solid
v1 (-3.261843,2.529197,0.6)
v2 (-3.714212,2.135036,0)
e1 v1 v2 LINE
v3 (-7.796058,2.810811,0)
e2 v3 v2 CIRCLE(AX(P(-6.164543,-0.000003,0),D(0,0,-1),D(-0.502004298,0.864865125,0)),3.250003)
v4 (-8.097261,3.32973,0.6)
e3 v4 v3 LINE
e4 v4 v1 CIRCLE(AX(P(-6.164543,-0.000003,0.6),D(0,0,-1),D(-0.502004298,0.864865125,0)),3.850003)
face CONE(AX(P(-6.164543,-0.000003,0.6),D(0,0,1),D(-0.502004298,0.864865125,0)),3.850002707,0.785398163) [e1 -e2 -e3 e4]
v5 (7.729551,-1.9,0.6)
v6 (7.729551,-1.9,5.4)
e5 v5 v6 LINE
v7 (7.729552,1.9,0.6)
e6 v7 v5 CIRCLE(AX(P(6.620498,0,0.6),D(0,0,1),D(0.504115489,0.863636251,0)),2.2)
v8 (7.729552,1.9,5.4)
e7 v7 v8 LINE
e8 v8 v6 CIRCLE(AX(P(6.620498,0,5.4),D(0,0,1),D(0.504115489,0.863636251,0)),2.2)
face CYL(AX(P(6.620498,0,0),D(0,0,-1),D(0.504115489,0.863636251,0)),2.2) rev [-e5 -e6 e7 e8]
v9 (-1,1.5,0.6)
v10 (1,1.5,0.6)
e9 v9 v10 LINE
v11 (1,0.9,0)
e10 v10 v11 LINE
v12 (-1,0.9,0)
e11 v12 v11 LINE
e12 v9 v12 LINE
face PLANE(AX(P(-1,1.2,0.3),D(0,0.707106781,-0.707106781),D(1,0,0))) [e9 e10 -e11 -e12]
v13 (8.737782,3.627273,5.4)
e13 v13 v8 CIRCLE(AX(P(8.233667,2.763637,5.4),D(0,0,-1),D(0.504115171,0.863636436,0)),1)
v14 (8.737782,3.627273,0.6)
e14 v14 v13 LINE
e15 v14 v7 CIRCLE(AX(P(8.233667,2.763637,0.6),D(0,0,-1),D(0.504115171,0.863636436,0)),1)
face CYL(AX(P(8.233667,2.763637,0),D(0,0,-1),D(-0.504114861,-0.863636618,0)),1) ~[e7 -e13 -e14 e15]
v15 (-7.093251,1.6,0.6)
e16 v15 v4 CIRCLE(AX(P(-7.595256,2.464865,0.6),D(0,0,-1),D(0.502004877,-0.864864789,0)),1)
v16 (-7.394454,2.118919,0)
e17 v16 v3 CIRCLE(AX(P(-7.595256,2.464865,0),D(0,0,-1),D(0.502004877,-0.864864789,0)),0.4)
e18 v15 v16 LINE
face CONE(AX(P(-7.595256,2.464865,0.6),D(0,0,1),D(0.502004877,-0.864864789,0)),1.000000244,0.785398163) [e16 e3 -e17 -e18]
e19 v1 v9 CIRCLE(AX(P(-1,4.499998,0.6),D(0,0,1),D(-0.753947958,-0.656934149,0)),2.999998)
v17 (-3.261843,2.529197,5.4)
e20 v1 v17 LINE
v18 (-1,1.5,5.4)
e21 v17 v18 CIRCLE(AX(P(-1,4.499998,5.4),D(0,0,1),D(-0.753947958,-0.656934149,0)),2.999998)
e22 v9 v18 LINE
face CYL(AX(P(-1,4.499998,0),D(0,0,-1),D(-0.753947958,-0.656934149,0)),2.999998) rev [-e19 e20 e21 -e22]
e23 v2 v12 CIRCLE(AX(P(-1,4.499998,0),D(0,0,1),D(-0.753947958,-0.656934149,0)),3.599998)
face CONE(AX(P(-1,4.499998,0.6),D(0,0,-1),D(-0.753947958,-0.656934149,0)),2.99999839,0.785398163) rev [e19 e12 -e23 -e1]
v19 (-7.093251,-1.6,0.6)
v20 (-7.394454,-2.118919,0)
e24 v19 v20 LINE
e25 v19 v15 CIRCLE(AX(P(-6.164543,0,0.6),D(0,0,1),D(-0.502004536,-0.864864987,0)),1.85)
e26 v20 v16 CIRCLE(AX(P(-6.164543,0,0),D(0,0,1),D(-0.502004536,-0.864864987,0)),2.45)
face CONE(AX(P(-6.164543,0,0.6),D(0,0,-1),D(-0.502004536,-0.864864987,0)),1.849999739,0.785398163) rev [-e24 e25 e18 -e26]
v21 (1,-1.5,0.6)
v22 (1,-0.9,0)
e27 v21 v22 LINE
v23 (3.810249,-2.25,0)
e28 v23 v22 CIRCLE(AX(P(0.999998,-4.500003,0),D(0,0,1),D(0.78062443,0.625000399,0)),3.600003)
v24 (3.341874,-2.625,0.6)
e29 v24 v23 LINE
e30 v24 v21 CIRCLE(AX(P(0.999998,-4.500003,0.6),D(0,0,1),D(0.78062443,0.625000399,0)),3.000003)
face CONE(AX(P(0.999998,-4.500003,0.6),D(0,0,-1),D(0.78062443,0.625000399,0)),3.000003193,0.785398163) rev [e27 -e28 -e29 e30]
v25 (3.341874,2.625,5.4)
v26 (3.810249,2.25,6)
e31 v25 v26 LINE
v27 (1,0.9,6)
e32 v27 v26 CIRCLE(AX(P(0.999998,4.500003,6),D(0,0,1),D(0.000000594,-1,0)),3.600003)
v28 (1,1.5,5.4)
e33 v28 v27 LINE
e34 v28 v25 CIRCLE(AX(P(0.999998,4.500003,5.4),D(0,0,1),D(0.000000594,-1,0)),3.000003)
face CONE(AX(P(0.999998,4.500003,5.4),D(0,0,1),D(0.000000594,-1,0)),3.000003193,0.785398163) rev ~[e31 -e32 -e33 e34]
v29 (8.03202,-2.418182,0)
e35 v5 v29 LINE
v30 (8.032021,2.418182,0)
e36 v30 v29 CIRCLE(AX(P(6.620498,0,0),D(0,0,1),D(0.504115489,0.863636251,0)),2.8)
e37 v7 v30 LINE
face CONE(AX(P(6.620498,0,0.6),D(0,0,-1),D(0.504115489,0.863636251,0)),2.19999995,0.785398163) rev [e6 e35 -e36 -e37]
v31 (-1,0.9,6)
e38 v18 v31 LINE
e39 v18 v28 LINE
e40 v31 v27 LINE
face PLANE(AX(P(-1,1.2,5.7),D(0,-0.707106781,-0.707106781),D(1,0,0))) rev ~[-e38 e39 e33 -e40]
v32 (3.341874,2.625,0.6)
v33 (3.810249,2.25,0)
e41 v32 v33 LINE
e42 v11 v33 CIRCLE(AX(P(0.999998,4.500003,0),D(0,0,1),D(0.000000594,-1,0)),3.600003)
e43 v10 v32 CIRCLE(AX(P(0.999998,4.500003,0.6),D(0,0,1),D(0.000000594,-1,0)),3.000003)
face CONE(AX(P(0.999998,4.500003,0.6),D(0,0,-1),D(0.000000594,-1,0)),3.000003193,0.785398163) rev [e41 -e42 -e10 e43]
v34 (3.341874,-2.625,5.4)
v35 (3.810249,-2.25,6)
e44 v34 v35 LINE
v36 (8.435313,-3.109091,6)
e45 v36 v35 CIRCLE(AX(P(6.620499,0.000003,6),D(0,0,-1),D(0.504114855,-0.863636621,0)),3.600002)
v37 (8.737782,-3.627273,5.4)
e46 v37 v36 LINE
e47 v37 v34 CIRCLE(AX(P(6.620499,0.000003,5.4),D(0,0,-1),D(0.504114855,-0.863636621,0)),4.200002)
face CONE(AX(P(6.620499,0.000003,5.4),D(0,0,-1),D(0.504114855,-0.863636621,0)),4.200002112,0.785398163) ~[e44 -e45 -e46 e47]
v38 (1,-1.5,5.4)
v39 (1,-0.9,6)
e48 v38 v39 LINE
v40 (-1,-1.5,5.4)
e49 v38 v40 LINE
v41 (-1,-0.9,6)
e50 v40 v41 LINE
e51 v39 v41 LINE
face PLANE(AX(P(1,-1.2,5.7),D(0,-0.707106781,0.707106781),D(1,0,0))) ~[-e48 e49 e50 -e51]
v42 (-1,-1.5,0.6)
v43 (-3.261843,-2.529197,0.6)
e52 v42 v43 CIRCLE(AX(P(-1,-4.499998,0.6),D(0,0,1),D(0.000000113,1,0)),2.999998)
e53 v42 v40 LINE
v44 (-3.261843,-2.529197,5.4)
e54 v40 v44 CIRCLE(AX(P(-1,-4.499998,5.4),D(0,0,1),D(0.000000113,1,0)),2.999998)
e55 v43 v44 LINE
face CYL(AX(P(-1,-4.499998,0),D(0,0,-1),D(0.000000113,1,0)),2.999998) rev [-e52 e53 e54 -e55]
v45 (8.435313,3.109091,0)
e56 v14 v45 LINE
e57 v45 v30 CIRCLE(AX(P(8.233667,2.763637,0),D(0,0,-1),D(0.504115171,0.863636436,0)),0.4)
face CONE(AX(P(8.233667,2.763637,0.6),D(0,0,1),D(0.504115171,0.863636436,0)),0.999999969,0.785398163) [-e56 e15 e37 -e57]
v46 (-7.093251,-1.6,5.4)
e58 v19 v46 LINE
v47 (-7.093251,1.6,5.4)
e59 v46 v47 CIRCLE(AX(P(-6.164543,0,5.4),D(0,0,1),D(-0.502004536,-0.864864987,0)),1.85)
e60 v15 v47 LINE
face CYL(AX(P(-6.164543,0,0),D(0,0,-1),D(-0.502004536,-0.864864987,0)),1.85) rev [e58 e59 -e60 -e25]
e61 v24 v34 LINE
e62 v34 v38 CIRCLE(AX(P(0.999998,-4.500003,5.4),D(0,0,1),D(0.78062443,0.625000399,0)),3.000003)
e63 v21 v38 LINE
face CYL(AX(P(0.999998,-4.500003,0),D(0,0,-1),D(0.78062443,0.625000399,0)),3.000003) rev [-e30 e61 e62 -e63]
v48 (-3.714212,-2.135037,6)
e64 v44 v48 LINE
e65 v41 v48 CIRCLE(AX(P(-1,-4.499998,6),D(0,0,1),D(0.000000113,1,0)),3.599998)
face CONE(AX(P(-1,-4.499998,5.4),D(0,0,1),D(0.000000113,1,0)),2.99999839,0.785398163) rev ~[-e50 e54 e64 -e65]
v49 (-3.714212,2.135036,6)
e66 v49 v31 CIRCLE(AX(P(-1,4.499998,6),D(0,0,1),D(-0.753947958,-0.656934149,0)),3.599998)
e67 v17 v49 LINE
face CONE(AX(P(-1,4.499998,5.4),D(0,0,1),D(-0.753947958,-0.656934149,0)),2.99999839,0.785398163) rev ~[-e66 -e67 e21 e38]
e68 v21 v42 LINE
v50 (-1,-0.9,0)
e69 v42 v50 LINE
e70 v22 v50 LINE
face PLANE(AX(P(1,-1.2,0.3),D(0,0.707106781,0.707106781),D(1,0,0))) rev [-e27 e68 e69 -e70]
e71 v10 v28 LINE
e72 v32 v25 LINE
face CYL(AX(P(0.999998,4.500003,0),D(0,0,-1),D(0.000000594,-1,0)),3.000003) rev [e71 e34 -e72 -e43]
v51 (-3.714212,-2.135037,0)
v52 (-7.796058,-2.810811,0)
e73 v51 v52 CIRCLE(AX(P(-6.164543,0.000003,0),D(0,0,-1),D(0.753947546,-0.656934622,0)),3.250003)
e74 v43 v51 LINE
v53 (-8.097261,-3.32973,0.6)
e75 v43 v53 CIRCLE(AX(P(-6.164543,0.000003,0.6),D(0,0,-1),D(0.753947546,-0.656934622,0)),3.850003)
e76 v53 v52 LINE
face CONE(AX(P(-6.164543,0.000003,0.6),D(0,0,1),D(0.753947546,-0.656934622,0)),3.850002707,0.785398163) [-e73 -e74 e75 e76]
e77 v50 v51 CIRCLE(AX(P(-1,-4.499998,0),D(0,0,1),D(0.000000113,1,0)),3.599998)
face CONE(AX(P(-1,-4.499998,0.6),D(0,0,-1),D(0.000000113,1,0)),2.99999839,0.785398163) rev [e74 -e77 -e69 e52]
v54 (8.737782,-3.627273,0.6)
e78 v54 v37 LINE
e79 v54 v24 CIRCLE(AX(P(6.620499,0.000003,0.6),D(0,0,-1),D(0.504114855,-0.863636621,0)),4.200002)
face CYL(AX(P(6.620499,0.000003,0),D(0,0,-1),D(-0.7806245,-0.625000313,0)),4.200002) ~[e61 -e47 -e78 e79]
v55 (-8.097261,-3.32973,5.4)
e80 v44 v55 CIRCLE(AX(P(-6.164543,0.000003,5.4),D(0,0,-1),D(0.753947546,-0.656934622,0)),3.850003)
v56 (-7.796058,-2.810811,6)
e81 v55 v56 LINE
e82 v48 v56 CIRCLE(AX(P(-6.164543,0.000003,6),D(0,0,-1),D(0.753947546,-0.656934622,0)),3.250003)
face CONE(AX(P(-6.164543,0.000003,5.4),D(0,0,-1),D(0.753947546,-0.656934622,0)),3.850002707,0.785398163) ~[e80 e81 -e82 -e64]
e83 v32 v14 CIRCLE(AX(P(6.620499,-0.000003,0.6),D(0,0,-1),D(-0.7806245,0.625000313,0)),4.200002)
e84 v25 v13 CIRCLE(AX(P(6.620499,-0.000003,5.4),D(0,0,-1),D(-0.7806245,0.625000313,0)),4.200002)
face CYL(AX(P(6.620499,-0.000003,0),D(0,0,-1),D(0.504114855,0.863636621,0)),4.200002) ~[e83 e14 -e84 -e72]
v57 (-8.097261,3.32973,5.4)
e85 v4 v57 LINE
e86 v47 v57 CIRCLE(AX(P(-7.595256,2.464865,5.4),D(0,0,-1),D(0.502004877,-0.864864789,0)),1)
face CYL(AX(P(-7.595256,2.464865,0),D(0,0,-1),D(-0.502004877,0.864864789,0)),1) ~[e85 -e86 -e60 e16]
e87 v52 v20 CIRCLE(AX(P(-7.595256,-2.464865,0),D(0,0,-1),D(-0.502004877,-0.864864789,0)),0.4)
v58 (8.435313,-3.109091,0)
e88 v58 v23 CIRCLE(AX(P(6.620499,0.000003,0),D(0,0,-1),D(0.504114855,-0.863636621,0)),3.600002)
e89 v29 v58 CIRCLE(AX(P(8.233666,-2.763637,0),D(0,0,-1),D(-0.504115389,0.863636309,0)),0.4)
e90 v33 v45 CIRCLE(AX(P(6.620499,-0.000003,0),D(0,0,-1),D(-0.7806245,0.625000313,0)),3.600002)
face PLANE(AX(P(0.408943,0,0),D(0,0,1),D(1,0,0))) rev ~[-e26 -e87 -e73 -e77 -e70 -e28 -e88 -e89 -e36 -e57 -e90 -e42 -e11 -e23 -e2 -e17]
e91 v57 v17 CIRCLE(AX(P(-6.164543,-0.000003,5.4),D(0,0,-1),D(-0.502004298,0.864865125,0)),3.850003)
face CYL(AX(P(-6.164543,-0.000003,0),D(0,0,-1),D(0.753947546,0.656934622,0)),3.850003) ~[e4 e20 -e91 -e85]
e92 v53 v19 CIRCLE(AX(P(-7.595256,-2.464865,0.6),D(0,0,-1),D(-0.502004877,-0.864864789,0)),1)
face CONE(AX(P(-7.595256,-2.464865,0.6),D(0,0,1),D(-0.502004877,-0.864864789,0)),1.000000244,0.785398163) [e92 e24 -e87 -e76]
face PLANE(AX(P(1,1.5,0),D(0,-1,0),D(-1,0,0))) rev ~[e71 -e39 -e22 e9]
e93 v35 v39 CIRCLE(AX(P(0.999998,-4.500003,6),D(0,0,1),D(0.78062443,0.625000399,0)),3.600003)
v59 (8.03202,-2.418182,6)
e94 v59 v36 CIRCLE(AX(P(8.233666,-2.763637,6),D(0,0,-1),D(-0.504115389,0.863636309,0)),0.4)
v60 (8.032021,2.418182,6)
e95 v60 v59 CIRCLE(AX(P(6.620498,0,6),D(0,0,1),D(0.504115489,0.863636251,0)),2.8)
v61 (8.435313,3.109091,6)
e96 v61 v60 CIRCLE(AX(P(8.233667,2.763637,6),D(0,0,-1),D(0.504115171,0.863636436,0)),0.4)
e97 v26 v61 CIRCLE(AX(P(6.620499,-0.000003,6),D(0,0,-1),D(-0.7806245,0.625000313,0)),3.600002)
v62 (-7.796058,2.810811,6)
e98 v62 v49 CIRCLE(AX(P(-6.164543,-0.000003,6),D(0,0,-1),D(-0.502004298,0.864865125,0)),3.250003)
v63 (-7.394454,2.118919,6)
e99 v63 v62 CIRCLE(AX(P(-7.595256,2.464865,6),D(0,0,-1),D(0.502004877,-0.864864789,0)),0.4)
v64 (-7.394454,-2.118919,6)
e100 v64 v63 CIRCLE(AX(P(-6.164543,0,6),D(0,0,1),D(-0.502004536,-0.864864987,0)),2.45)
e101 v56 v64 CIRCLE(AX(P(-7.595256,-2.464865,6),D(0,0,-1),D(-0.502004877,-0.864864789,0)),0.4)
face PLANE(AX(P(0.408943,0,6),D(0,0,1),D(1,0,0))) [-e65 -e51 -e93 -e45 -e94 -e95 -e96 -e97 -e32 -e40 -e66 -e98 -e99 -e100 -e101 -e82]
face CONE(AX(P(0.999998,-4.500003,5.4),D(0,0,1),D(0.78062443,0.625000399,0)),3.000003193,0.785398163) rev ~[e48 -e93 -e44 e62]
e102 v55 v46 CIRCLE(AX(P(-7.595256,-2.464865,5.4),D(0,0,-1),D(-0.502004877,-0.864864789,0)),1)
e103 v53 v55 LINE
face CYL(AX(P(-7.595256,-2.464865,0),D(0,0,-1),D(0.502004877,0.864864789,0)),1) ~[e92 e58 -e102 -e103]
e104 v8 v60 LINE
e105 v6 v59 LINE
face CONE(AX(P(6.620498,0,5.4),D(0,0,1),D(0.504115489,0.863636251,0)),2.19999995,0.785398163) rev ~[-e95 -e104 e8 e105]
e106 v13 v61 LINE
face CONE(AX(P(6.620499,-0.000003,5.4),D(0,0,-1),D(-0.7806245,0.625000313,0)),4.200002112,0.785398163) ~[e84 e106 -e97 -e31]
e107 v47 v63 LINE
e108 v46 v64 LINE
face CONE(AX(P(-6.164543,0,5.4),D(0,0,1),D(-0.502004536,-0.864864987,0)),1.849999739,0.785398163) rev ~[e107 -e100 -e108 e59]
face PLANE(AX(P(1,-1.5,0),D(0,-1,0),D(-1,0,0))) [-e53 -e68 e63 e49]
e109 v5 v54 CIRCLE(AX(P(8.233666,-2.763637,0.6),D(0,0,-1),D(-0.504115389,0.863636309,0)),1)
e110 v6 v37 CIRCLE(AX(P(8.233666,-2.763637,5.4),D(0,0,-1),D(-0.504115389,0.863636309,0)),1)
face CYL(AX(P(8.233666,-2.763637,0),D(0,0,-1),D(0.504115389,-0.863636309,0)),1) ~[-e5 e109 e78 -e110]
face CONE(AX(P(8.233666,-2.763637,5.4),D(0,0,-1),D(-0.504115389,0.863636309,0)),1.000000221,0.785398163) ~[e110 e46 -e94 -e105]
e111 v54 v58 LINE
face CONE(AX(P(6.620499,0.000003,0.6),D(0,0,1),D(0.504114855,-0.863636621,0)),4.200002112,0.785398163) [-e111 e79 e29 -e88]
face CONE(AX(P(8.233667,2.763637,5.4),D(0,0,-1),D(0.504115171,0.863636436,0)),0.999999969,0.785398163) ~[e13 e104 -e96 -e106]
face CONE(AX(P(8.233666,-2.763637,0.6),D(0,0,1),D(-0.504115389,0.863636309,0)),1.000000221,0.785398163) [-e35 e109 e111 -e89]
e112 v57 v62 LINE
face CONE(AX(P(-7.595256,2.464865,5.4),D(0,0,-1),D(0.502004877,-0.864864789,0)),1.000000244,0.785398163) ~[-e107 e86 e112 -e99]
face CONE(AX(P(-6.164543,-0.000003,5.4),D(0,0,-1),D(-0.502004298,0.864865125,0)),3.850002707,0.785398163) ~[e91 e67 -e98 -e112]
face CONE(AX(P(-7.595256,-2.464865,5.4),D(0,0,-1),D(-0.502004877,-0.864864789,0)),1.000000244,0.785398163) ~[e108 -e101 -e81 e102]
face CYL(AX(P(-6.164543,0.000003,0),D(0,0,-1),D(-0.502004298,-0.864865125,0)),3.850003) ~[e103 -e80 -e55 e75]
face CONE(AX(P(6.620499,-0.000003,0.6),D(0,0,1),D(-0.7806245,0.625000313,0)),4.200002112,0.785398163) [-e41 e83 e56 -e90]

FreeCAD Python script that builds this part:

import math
import FreeCAD as App
import Part
import Sketcher
from FreeCAD import Vector


def edges_at(feature, points):
    """Names of the edges that pass closest to the given points."""
    edges = feature.Shape.Edges
    near = lambda p: min(range(len(edges)), key=lambda i: edges[i].distToShape(Part.Vertex(*p))[0])
    return sorted({f"Edge{near(p) + 1}" for p in points})

doc = App.newDocument("Part")
body = doc.addObject("PartDesign::Body", "Body")

# Sketch on XY plane
sketch1 = doc.addObject("Sketcher::SketchObject", "Sketch")
body.addObject(sketch1)
sketch1.AttachmentSupport = (doc.XY_Plane, [""])
sketch1.MapMode = "FlatFace"
sketch1.addGeometry([
    Part.ArcOfCircle(Part.Circle(Vector(8.2, 2.8, 0), Vector(0, 0, 1), 1), math.radians(-120), math.radians(60)),  # 0
    Part.ArcOfCircle(Part.Circle(Vector(6.6, 0, 0), Vector(0, 0, 1), 4.2), math.radians(60), math.radians(141)),  # 1
    Part.ArcOfCircle(Part.Circle(Vector(1, 4.5, 0), Vector(0, 0, 1), 3), math.radians(-90), math.radians(-39)),  # 2
    Part.LineSegment(Vector(1, 1.5, 0), Vector(-1, 1.5, 0)),  # 3
    Part.ArcOfCircle(Part.Circle(Vector(-1, 4.5, 0), Vector(0, 0, 1), 3), math.radians(-139), math.radians(-90)),  # 4
    Part.ArcOfCircle(Part.Circle(Vector(-6.2, 0, 0), Vector(0, 0, 1), 3.9), math.radians(41), math.radians(120)),  # 5
    Part.ArcOfCircle(Part.Circle(Vector(-7.6, 2.5, 0), Vector(0, 0, 1), 1), math.radians(120), math.radians(300)),  # 6
    Part.ArcOfCircle(Part.Circle(Vector(-6.2, 0, 0), Vector(0, 0, 1), 1.8), math.radians(-120), math.radians(120)),  # 7
    Part.ArcOfCircle(Part.Circle(Vector(-7.6, -2.5, 0), Vector(0, 0, 1), 1), math.radians(60), math.radians(240)),  # 8
    Part.ArcOfCircle(Part.Circle(Vector(-6.2, 0, 0), Vector(0, 0, 1), 3.9), math.radians(-120), math.radians(-41)),  # 9
    Part.ArcOfCircle(Part.Circle(Vector(-1, -4.5, 0), Vector(0, 0, 1), 3), math.radians(90), math.radians(139)),  # 10
    Part.LineSegment(Vector(-1, -1.5, 0), Vector(1, -1.5, 0)),  # 11
    Part.ArcOfCircle(Part.Circle(Vector(1, -4.5, 0), Vector(0, 0, 1), 3), math.radians(39), math.radians(90)),  # 12
    Part.ArcOfCircle(Part.Circle(Vector(6.6, 0, 0), Vector(0, 0, 1), 4.2), math.radians(-141), math.radians(-60)),  # 13
    Part.ArcOfCircle(Part.Circle(Vector(8.2, -2.8, 0), Vector(0, 0, 1), 1), math.radians(-60), math.radians(120)),  # 14
    Part.ArcOfCircle(Part.Circle(Vector(6.6, 0, 0), Vector(0, 0, 1), 2.2), math.radians(60), math.radians(300)),  # 15
], False)
sketch1.addConstraint([
    Sketcher.Constraint("Tangent", 0, 2, 1, 1),
    Sketcher.Constraint("Tangent", 1, 2, 2, 2),
    Sketcher.Constraint("Tangent", 2, 1, 3, 1),
    Sketcher.Constraint("Tangent", 3, 2, 4, 2),
    Sketcher.Constraint("Tangent", 4, 1, 5, 1),
    Sketcher.Constraint("Tangent", 5, 2, 6, 1),
    Sketcher.Constraint("Tangent", 6, 2, 7, 2),
    Sketcher.Constraint("Tangent", 7, 1, 8, 1),
    Sketcher.Constraint("Tangent", 8, 2, 9, 1),
    Sketcher.Constraint("Tangent", 9, 2, 10, 2),
    Sketcher.Constraint("Tangent", 10, 1, 11, 1),
    Sketcher.Constraint("Tangent", 11, 2, 12, 2),
    Sketcher.Constraint("Tangent", 12, 1, 13, 1),
    Sketcher.Constraint("Tangent", 13, 2, 14, 1),
    Sketcher.Constraint("Tangent", 14, 2, 15, 2),
    Sketcher.Constraint("Tangent", 15, 1, 0, 1),
    Sketcher.Constraint("Horizontal", 3),
    Sketcher.Constraint("Horizontal", 11),
    Sketcher.Constraint("Coincident", 7, 3, 5, 3),
    Sketcher.Constraint("Coincident", 9, 3, 5, 3),
    Sketcher.Constraint("Coincident", 13, 3, 1, 3),
    Sketcher.Constraint("Coincident", 15, 3, 1, 3),
    Sketcher.Constraint("Equal", 0, 6),
    Sketcher.Constraint("Equal", 6, 8),
    Sketcher.Constraint("Equal", 4, 10),
    Sketcher.Constraint("Equal", 2, 12),
    Sketcher.Constraint("Equal", 1, 13),
    Sketcher.Constraint("Symmetric", 2, 3, 10, 3, -1, 1),
    Sketcher.Constraint("Symmetric", 4, 3, 12, 3, -1, 1),
    Sketcher.Constraint("Symmetric", 6, 3, 8, 3, -1),
    Sketcher.Constraint("Vertical", 0, 3, 14, 3),
    Sketcher.Constraint("Radius", 0, 1.0),
    Sketcher.Constraint("Radius", 4, 2.999998),
    Sketcher.Constraint("Radius", 15, 2.2),
    Sketcher.Constraint("DistanceX", 3, 2, 3, 1, 2.0),
    Sketcher.Constraint("Radius", 7, 1.85),
    Sketcher.Constraint("DistanceY", 10, 1, 3, 2, 3.0),
    Sketcher.Constraint("DistanceY", -1, 1, 6, 2, 1.6),
    Sketcher.Constraint("DistanceY", 14, 2, -1, 1, 1.9),
])
pad1 = doc.addObject("PartDesign::Pad", "Pad")
body.addObject(pad1)
pad1.Profile = sketch1
pad1.Length = 6
doc.recompute()

chamfer = doc.addObject("PartDesign::Chamfer", "Chamfer")
body.addObject(chamfer)
chamfer.Base = (pad1, edges_at(pad1, [(0, -1.5, 6), (0, -1.5, 0)]))
chamfer.Size = 0.6

doc.recompute()
